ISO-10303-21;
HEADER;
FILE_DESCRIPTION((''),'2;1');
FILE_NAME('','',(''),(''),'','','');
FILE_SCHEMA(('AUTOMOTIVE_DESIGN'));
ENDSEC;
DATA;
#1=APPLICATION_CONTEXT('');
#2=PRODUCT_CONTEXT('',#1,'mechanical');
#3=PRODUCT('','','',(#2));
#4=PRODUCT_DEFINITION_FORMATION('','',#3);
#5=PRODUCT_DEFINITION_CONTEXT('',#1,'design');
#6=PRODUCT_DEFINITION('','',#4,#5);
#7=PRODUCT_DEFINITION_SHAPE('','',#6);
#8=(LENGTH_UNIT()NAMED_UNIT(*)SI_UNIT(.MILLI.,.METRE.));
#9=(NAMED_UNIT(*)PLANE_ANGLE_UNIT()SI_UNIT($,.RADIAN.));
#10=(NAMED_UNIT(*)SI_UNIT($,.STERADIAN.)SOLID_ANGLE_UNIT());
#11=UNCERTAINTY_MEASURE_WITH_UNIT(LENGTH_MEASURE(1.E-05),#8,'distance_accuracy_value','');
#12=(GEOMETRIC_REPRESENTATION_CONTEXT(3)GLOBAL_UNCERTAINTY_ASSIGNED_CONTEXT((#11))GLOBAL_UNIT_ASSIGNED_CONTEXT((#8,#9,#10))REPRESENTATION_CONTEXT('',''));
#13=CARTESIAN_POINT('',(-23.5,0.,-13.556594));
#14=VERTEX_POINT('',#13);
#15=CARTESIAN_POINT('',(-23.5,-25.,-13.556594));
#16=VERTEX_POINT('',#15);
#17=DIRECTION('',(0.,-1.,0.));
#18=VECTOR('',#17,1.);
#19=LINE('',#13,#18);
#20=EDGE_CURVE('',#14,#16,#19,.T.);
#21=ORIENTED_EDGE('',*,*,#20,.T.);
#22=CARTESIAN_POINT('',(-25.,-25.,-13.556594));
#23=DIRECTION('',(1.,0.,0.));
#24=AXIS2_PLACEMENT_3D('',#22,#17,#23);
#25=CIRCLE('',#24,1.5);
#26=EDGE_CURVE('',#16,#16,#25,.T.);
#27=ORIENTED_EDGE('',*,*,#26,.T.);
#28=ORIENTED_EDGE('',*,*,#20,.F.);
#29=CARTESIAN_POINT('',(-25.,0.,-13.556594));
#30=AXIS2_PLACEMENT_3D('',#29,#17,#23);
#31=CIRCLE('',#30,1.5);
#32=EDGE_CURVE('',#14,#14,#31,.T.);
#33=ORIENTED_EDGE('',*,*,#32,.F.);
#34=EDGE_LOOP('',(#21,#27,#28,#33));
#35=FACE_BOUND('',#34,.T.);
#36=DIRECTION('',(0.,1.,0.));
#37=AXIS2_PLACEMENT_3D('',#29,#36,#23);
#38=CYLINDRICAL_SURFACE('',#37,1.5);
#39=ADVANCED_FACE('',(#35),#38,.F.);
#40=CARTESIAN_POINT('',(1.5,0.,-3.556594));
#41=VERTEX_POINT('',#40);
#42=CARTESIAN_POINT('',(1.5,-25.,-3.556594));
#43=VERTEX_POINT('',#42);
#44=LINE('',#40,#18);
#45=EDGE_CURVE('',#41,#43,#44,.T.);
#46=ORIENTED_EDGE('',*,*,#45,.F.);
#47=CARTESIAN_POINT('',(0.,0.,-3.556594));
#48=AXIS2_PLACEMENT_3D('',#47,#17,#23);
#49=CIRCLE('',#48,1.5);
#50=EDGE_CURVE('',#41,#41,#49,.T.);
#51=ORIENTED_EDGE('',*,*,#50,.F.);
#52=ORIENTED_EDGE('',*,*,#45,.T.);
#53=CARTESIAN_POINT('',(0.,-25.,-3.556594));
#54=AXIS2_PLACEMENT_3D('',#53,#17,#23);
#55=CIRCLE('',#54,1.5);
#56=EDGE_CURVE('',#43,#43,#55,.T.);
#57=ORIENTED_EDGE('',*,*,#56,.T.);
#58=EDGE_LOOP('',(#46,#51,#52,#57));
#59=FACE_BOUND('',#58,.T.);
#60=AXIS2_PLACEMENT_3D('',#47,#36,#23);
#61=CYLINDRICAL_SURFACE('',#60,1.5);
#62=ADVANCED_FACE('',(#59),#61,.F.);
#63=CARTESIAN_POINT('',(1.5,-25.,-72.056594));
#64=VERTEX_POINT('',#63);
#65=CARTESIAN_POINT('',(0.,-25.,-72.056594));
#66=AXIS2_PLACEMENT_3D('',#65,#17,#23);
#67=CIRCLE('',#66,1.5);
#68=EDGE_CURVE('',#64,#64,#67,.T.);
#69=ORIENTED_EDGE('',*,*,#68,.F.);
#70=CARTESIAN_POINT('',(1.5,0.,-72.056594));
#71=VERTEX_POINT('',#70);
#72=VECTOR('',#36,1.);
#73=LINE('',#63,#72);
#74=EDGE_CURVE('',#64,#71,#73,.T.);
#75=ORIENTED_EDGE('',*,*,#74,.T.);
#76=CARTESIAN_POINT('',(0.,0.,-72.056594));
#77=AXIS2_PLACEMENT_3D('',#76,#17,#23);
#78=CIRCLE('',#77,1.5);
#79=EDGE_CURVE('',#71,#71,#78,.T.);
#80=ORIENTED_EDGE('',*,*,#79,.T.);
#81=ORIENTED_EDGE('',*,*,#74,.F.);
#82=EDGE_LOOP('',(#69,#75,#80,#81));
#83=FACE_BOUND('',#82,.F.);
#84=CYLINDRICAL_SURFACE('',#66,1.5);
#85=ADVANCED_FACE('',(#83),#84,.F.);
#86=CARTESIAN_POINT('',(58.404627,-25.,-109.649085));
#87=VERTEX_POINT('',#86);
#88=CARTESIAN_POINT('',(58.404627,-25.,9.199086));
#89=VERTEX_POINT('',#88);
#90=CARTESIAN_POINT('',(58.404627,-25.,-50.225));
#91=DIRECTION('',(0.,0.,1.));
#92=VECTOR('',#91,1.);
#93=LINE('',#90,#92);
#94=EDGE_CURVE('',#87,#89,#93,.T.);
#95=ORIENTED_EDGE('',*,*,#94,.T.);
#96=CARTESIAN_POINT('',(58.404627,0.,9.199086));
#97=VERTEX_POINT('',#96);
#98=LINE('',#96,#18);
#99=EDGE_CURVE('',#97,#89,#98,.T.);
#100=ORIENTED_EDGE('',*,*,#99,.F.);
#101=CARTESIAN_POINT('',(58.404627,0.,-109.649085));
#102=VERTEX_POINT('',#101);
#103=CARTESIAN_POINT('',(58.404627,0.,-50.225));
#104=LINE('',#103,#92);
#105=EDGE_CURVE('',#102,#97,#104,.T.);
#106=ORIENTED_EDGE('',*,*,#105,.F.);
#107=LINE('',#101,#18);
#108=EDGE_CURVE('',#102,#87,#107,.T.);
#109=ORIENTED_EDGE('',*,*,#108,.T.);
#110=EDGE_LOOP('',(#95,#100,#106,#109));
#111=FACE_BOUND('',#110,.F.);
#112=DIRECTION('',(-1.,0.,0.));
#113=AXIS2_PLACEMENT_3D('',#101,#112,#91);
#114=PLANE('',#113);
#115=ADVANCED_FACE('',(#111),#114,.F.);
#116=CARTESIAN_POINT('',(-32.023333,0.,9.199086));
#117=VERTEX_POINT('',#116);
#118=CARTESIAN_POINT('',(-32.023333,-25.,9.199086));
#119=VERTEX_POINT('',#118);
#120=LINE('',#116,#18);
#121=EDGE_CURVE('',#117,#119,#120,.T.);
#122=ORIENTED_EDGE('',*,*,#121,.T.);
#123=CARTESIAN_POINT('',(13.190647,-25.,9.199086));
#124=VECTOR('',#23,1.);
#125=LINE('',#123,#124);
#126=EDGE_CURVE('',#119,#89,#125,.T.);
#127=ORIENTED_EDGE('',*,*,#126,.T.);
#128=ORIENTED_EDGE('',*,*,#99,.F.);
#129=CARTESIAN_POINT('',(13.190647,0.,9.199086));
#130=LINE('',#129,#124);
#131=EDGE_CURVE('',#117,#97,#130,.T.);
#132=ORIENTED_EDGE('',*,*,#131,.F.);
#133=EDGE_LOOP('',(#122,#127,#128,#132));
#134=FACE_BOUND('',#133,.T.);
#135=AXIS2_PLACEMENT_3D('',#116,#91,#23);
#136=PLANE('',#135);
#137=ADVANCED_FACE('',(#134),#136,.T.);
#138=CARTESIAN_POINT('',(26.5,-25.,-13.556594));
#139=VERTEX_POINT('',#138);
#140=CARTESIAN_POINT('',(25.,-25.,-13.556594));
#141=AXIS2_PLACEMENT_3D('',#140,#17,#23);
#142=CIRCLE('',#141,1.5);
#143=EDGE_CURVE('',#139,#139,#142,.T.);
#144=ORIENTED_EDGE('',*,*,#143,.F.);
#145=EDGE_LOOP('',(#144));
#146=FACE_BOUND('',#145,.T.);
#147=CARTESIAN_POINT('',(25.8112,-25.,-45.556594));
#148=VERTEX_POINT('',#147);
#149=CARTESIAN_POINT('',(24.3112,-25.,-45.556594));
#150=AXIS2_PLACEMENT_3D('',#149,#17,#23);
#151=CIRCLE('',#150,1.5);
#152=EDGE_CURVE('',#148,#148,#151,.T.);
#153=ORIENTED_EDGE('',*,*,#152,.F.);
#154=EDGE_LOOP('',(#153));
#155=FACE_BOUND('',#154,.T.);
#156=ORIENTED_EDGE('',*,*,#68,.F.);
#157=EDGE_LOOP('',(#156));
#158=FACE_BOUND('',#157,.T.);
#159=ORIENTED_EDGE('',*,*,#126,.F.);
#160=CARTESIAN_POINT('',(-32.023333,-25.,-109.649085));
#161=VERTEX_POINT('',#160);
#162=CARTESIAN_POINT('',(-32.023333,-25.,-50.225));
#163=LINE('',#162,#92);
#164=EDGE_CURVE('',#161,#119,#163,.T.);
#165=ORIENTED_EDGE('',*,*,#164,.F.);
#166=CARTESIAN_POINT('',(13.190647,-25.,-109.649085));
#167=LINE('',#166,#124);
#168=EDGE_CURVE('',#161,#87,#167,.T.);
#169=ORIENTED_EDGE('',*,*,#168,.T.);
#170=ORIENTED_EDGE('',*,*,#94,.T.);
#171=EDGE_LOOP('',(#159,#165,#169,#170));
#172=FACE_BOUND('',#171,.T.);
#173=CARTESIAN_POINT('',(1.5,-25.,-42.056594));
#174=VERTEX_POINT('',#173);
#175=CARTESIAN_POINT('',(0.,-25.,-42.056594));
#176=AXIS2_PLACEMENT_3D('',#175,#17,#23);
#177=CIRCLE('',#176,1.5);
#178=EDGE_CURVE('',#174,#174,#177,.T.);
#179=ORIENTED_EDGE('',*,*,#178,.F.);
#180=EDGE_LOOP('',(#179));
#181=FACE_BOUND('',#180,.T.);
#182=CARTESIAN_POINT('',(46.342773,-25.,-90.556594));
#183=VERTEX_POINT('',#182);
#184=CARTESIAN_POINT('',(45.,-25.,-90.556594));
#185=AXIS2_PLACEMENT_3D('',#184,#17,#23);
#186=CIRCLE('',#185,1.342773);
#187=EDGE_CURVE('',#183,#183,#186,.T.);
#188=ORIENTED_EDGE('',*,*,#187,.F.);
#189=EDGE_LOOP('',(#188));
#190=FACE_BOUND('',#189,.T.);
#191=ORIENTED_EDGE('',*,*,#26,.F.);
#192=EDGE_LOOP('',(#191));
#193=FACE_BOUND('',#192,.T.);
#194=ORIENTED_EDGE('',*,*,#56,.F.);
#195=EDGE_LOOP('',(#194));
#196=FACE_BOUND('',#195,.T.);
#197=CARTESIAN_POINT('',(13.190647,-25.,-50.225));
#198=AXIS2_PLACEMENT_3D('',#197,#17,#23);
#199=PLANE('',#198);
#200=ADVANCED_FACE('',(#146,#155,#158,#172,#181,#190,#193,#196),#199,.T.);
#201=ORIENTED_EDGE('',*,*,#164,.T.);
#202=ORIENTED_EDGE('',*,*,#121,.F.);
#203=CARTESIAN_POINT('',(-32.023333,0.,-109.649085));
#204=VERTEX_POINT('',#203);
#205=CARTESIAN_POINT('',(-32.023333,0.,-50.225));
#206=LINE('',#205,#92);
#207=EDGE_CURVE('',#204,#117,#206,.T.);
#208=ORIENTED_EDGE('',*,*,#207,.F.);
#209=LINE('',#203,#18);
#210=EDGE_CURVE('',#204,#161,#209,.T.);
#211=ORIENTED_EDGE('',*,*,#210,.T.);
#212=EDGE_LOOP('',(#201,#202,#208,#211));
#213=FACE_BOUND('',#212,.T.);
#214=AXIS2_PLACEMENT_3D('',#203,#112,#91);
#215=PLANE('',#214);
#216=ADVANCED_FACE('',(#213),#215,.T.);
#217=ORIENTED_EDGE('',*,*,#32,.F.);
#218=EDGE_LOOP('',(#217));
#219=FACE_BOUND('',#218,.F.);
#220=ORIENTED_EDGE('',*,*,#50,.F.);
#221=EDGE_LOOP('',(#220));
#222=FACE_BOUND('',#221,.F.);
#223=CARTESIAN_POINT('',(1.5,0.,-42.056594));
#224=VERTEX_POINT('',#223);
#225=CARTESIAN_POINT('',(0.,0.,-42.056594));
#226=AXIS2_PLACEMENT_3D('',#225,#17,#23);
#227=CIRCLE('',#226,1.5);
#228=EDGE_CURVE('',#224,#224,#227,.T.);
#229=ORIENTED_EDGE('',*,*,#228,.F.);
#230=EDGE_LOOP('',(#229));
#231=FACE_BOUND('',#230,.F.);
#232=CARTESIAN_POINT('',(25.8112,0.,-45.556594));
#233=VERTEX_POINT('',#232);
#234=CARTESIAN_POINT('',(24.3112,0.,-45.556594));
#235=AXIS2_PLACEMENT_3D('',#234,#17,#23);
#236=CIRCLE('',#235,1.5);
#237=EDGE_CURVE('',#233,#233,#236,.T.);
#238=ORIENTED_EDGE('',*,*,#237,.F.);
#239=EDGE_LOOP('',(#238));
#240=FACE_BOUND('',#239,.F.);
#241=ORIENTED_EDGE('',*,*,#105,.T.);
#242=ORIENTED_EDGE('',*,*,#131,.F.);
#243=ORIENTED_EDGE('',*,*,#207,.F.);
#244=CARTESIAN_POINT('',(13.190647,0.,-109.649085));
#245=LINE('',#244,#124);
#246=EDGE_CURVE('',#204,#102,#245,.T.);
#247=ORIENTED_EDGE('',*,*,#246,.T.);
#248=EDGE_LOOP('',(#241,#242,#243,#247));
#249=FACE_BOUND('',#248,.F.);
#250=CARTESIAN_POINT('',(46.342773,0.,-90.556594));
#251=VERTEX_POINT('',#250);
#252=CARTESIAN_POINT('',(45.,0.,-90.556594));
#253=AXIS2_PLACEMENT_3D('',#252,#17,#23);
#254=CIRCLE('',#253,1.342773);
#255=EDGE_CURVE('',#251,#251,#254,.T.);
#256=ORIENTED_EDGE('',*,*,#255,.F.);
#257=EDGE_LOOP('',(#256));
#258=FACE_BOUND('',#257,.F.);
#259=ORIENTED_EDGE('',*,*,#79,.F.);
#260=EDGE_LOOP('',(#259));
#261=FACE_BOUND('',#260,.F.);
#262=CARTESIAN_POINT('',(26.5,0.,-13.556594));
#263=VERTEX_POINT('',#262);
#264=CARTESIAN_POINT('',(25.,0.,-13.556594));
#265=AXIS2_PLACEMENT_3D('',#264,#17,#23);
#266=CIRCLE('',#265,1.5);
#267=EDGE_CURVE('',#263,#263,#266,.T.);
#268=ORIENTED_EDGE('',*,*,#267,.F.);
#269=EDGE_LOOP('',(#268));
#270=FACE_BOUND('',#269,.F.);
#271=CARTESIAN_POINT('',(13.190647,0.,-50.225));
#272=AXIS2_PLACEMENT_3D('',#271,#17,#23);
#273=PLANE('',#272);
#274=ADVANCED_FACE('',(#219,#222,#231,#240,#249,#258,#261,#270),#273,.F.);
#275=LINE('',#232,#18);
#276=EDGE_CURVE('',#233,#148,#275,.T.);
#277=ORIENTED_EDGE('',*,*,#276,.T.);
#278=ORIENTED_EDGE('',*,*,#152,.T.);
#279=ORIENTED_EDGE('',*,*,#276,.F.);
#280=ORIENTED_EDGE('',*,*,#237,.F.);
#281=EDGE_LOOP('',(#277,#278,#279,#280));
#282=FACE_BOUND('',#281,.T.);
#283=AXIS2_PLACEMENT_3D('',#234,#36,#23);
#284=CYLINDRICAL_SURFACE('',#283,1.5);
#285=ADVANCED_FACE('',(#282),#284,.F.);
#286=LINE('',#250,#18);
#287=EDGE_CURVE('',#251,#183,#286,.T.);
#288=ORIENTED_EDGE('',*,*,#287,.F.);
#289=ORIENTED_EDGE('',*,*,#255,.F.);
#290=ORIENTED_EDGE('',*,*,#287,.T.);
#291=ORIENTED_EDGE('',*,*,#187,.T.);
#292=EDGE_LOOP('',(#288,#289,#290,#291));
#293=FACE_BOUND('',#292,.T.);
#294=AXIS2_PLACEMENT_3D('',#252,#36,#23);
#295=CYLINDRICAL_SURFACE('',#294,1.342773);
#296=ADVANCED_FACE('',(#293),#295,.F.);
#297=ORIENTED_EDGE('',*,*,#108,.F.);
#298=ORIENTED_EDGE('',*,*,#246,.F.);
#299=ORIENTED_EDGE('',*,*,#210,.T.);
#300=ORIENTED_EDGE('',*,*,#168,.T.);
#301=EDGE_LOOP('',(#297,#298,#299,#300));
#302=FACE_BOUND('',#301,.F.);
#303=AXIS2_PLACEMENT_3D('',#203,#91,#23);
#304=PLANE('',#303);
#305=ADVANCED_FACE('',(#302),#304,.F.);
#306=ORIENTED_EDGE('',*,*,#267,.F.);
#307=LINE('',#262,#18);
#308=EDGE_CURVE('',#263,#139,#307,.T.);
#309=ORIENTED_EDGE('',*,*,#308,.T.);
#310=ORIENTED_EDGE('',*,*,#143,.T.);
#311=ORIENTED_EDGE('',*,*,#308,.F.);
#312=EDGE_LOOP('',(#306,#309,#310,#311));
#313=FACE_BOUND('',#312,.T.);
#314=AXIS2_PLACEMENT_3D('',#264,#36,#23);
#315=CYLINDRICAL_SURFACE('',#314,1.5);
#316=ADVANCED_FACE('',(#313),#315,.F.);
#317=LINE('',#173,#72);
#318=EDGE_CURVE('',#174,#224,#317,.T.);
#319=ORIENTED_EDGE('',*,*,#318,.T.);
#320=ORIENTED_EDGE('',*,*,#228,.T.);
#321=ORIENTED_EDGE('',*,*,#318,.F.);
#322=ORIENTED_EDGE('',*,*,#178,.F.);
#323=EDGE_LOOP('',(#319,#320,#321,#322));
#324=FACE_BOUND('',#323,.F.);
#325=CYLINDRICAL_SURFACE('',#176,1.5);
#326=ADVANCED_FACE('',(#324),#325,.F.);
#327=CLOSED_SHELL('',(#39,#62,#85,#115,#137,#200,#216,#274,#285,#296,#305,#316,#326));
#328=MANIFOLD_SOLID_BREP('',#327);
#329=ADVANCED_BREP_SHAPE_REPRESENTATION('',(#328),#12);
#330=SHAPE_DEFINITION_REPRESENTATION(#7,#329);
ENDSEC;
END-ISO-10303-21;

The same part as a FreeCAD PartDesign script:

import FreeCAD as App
import Part
import Sketcher

doc = App.newDocument("Part")
body = doc.addObject("PartDesign::Body", "Body")

# Sketch on XZ plane
sketch1 = doc.addObject("Sketcher::SketchObject", "Sketch")
body.addObject(sketch1)
sketch1.AttachmentSupport = (doc.XZ_Plane, [""])
sketch1.MapMode = "FlatFace"
sketch1.addGeometry(Part.LineSegment(App.Vector(-32.023333, 9.199086, 0), App.Vector(-32.023333, -109.649085, 0)), False)
sketch1.addGeometry(Part.LineSegment(App.Vector(-32.023333, -109.649085, 0), App.Vector(58.404627, -109.649085, 0)), False)
sketch1.addGeometry(Part.LineSegment(App.Vector(58.404627, -109.649085, 0), App.Vector(58.404627, 9.199086, 0)), False)
sketch1.addGeometry(Part.LineSegment(App.Vector(58.404627, 9.199086, 0), App.Vector(-32.023333, 9.199086, 0)), False)
sketch1.addGeometry(Part.Circle(App.Vector(45, -90.556594, 0), App.Vector(0, 0, 1), 1.342773), False)
sketch1.addGeometry(Part.Circle(App.Vector(-25, -13.556594, 0), App.Vector(0, 0, 1), 1.5), False)
sketch1.addGeometry(Part.Circle(App.Vector(0, -3.556594, 0), App.Vector(0, 0, 1), 1.5), False)
sketch1.addGeometry(Part.Circle(App.Vector(24.3112, -45.556594, 0), App.Vector(0, 0, 1), 1.5), False)
sketch1.addGeometry(Part.Circle(App.Vector(25, -13.556594, 0), App.Vector(0, 0, 1), 1.5), False)
sketch1.addConstraint(Sketcher.Constraint("Coincident", 0, 2, 1, 1))
sketch1.addConstraint(Sketcher.Constraint("Coincident", 1, 2, 2, 1))
sketch1.addConstraint(Sketcher.Constraint("Coincident", 2, 2, 3, 1))
sketch1.addConstraint(Sketcher.Constraint("Coincident", 3, 2, 0, 1))
sketch1.addConstraint(Sketcher.Constraint("Vertical", 0))
sketch1.addConstraint(Sketcher.Constraint("Horizontal", 1))
sketch1.addConstraint(Sketcher.Constraint("Vertical", 2))
sketch1.addConstraint(Sketcher.Constraint("Horizontal", 3))
sketch1.addConstraint(Sketcher.Constraint("Equal", 5, 6))
sketch1.addConstraint(Sketcher.Constraint("Equal", 6, 7))
sketch1.addConstraint(Sketcher.Constraint("Equal", 7, 8))
sketch1.addConstraint(Sketcher.Constraint("Symmetric", 5, 3, 8, 3, -2))
sketch1.addConstraint(Sketcher.Constraint("PointOnObject", 6, 3, -2))
sketch1.addConstraint(Sketcher.Constraint("Diameter", 5, 3.0))
sketch1.addConstraint(Sketcher.Constraint("DistanceX", -1, 1, 4, 3, 45.0))
sketch1.addConstraint(Sketcher.Constraint("DistanceX", 5, 3, -1, 1, 25.0))
sketch1.addConstraint(Sketcher.Constraint("DistanceY", 4, 3, 5, 3, 77.0))
sketch1.addConstraint(Sketcher.Constraint("DistanceY", 5, 3, 6, 3, 10.0))
sketch1.addConstraint(Sketcher.Constraint("DistanceY", 7, 3, 6, 3, 42.0))
sketch1.addConstraint(Sketcher.Constraint("Diameter", 4, 2.685546))
sketch1.addConstraint(Sketcher.Constraint("DistanceX", 1, 1, 1, 2, 90.427961))
sketch1.addConstraint(Sketcher.Constraint("DistanceY", 0, 2, 0, 1, 118.848171))
sketch1.addConstraint(Sketcher.Constraint("DistanceX", -1, 1, 7, 3, 24.3112))
sketch1.addConstraint(Sketcher.Constraint("DistanceY", 0, 2, 4, 3, 19.092491))
sketch1.addConstraint(Sketcher.Constraint("DistanceY", 4, 3, -1, 1, 90.556594))
sketch1.addConstraint(Sketcher.Constraint("DistanceX", 0, 2, -1, 1, 32.023333))
pad1 = doc.addObject("PartDesign::Pad", "Pad")
body.addObject(pad1)
pad1.Profile = sketch1
pad1.Length = 25

# Sketch on XZ plane
sketch2 = doc.addObject("Sketcher::SketchObject", "Sketch001")
body.addObject(sketch2)
sketch2.AttachmentSupport = (doc.XZ_Plane, [""])
sketch2.MapMode = "FlatFace"
sketch2.AttachmentOffset = App.Placement(App.Vector(0, 0, 25), App.Rotation())
sketch2.addGeometry(Part.Circle(App.Vector(0, -42.056594, 0), App.Vector(0, 0, 1), 1.5), False)
sketch2.addGeometry(Part.Circle(App.Vector(0, -72.056594, 0), App.Vector(0, 0, 1), 1.5), False)
sketch2.addConstraint(Sketcher.Constraint("Equal", 0, 1))
sketch2.addConstraint(Sketcher.Constraint("PointOnObject", 0, 3, -2))
sketch2.addConstraint(Sketcher.Constraint("PointOnObject", 1, 3, -2))
sketch2.addConstraint(Sketcher.Constraint("Diameter", 0, 3.0))
sketch2.addConstraint(Sketcher.Constraint("DistanceY", 1, 3, 0, 3, 30.0))
sketch2.addConstraint(Sketcher.Constraint("DistanceY", 0, 3, -1, 1, 42.056594))
pocket1 = doc.addObject("PartDesign::Pocket", "Pocket")
body.addObject(pocket1)
pocket1.Profile = sketch2
pocket1.Length = 25

doc.recompute()
